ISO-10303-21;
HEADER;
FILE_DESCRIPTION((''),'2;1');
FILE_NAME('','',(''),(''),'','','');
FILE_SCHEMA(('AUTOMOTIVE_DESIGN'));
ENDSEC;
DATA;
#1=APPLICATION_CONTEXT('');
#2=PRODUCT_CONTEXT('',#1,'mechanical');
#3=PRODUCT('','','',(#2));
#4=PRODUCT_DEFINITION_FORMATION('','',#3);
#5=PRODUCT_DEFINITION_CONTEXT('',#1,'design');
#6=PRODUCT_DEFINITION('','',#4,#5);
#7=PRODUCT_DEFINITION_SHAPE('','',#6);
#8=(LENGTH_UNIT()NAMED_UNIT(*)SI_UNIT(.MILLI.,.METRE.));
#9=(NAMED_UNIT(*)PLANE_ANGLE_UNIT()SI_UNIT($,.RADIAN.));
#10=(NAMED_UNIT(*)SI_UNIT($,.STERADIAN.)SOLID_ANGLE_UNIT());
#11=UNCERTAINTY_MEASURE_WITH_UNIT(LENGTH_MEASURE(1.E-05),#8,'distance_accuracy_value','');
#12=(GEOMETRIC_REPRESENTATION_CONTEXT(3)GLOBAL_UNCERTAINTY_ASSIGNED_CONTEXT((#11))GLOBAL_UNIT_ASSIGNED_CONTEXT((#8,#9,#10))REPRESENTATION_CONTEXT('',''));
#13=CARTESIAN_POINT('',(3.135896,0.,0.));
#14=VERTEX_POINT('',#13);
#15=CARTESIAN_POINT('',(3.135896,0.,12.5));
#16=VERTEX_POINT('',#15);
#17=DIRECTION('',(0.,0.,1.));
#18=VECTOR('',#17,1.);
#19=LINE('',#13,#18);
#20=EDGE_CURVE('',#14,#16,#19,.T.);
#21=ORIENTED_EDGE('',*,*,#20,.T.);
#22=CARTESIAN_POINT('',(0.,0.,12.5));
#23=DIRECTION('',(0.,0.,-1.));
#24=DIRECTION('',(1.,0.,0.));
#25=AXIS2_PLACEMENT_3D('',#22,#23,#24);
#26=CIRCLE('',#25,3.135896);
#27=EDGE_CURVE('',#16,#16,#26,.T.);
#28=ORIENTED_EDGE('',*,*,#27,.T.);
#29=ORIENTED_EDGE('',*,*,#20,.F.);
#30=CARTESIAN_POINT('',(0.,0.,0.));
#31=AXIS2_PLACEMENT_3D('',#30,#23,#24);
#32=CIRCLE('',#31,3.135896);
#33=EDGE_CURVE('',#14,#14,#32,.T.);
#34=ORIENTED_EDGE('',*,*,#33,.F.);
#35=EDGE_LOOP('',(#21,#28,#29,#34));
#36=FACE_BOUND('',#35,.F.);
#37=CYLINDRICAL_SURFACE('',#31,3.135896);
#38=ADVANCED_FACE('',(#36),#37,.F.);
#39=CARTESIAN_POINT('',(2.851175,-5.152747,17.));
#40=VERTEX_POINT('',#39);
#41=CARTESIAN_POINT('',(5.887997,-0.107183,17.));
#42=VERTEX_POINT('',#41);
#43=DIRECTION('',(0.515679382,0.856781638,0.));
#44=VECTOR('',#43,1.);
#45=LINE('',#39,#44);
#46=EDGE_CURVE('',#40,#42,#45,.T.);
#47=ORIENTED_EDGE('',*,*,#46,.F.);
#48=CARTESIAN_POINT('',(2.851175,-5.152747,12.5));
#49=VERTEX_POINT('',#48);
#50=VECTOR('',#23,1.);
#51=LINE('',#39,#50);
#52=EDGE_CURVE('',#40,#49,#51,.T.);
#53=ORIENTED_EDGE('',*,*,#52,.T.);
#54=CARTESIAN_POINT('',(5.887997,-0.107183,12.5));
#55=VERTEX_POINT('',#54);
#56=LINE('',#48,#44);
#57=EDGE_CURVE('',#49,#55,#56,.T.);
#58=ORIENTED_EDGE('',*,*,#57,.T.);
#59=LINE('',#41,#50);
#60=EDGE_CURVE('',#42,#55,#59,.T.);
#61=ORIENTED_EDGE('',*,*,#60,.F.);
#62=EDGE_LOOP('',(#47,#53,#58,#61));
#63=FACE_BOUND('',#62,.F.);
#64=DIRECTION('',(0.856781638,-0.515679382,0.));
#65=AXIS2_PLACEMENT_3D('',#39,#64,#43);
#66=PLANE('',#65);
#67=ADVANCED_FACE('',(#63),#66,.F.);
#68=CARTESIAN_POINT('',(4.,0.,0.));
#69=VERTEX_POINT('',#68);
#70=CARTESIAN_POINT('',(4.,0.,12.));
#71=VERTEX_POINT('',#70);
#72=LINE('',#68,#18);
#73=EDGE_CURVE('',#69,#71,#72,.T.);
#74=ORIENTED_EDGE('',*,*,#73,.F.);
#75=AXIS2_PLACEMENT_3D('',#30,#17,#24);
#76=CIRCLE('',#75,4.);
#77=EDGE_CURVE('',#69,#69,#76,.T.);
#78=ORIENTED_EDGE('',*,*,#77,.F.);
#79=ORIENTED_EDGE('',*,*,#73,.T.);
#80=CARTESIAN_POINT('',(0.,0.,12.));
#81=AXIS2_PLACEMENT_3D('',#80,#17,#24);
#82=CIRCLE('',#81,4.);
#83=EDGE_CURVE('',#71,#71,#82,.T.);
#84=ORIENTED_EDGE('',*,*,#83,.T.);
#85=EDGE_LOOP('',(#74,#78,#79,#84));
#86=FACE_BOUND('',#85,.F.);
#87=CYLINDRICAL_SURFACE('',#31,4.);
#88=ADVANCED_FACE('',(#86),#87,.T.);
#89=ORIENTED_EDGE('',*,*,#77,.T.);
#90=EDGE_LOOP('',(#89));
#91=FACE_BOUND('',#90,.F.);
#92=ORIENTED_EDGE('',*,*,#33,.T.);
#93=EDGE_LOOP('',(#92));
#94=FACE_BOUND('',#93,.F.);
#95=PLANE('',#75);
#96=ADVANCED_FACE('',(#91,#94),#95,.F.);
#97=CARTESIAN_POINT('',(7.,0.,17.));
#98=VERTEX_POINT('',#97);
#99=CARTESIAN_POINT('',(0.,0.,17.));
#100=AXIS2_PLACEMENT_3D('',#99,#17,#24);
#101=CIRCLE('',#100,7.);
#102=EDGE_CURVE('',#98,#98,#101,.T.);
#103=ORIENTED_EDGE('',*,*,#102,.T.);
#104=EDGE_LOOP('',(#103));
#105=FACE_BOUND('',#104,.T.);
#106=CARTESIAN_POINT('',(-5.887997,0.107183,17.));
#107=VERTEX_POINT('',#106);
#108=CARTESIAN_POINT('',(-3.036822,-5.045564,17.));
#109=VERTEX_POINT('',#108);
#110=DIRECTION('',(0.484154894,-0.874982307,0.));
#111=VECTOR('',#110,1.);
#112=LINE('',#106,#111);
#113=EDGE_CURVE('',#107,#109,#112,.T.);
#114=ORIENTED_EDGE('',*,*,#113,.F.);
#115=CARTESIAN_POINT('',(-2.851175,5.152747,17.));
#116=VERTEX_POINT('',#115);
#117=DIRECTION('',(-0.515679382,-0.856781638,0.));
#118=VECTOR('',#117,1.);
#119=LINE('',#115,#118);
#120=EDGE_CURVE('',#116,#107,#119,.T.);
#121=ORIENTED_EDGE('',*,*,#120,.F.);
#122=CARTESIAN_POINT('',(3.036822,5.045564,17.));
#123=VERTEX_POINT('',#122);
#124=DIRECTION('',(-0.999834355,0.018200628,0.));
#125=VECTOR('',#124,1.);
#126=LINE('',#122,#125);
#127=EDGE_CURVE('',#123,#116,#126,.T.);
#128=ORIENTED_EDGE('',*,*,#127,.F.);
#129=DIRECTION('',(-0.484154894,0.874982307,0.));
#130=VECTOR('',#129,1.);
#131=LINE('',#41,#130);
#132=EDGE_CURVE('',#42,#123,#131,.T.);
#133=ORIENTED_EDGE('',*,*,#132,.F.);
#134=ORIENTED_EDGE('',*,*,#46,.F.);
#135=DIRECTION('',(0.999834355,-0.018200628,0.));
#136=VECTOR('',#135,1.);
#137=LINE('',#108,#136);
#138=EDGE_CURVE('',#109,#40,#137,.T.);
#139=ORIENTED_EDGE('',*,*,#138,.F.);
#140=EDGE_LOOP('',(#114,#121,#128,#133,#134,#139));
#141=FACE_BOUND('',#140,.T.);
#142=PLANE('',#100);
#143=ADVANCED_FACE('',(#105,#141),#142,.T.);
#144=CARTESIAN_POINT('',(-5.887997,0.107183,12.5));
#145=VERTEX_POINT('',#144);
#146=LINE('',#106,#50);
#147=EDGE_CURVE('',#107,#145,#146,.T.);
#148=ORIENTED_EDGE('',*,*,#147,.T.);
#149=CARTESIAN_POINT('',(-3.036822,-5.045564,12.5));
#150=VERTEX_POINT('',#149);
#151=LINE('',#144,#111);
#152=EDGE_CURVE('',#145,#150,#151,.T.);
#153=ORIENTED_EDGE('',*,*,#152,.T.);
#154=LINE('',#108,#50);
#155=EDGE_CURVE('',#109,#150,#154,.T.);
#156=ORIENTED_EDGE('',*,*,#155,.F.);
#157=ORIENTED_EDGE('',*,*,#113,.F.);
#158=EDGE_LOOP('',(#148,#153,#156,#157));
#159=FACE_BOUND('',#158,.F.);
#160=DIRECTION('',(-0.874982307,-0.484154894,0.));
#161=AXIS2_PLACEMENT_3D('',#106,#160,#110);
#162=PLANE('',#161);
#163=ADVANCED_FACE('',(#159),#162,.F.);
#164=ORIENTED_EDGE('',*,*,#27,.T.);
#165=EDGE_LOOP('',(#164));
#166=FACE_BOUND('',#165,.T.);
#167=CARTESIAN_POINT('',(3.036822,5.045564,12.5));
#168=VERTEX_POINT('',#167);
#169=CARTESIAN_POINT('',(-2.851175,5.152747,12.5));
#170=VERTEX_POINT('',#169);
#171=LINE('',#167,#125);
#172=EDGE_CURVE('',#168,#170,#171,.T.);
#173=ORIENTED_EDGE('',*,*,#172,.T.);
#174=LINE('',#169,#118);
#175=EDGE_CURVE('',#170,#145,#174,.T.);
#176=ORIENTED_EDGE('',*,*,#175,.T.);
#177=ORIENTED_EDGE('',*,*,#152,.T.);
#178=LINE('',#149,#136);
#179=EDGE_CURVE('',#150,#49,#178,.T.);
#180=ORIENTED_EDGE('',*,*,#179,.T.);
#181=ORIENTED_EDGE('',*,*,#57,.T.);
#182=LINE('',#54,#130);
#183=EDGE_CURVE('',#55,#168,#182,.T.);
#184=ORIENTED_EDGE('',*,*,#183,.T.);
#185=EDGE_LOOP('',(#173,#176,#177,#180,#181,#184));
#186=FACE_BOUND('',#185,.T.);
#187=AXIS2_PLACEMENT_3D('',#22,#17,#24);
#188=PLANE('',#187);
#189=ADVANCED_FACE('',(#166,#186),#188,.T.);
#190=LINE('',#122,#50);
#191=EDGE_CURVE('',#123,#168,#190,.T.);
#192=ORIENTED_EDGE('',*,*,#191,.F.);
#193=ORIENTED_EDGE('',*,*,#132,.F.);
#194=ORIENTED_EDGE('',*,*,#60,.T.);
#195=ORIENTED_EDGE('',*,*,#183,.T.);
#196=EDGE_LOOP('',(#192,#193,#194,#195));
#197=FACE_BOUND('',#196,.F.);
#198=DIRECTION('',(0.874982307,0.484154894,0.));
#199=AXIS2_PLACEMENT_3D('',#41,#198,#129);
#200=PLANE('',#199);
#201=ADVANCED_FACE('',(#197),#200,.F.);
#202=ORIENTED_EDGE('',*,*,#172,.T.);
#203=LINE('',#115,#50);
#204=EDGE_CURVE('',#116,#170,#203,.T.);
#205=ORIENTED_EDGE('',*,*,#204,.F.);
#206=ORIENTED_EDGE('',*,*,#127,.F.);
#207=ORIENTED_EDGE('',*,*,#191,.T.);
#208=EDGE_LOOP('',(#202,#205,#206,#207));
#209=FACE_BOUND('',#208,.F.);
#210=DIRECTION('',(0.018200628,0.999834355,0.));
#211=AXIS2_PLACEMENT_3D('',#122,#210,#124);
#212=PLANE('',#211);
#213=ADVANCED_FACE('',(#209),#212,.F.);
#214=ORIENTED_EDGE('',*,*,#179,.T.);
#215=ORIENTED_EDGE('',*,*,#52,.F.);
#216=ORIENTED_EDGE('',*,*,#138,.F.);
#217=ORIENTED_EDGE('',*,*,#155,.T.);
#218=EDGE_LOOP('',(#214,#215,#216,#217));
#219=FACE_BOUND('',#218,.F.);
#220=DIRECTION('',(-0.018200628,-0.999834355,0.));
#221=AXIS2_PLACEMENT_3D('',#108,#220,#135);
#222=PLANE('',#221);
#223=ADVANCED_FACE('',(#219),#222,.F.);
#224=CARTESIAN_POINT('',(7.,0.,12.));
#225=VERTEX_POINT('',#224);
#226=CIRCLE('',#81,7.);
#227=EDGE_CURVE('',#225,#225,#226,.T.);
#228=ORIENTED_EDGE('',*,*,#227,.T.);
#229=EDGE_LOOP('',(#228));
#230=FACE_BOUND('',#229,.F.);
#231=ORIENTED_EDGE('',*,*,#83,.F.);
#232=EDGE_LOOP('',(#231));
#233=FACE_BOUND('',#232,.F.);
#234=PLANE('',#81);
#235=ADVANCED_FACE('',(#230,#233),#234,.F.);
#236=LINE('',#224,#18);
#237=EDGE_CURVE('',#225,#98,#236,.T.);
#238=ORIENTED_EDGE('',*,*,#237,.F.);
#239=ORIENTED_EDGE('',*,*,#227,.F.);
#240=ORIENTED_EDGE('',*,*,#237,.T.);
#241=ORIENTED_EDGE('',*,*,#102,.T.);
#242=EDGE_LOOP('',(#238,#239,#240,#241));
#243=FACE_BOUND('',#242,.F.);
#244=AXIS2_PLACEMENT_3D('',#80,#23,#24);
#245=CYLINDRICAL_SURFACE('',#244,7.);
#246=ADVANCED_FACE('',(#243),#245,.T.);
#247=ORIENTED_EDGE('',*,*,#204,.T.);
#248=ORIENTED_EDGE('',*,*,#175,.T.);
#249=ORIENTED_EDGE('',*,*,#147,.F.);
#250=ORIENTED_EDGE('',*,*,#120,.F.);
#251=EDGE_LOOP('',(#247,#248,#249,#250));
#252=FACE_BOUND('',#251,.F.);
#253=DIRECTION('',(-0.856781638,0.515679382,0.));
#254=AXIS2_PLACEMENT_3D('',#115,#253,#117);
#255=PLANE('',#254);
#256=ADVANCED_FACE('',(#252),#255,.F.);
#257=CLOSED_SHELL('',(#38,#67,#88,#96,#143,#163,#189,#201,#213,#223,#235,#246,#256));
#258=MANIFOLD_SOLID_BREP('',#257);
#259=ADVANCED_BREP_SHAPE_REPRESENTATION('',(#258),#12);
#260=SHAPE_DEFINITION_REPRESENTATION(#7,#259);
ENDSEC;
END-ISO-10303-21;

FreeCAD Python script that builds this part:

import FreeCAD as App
import Part
import Sketcher
Q = App.Units.Quantity


def add_polygon(sketch, points):
    """Adds a closed chain of lines whose ends are joined by coincident constraints."""
    first, n = sketch.GeometryCount, len(points)
    for a, b in zip(points, points[1:] + points[:1]):
        sketch.addGeometry(Part.LineSegment(App.Vector(*a, 0), App.Vector(*b, 0)), False)
    for i in range(n):
        sketch.addConstraint(Sketcher.Constraint("Coincident", first + i, 2, first + (i + 1) % n, 1))

doc = App.newDocument("Part")
params = doc.addObject("Spreadsheet::Sheet", "Params")
for row, (alias, value) in enumerate([
    ("sketch1_diameter", "8 mm"),
    ("pad1_length", "12 mm"),
    ("sketch2_diameter", "14 mm"),
    ("pad2_length", "5 mm"),
    ("pocket1_length", "4.5 mm"),
    ("pocket2_length", "25 mm"),
], start=1):
    params.set(f"A{row}", alias)
    params.set(f"B{row}", "=" + value)
    params.setAlias(f"B{row}", alias)

body = doc.addObject("PartDesign::Body", "Body")

# Sketch on XY plane
sketch1 = body.newObject("Sketcher::SketchObject", "Sketch")
sketch1.AttachmentSupport = (doc.getObject("XY_Plane"), [""])
sketch1.MapMode = "FlatFace"
sketch1.addGeometry(Part.Circle(App.Vector(0, 0, 0), App.Vector(0, 0, 1), 4), False)
sketch1.addConstraint([
    Sketcher.Constraint("Coincident", 0, 3, -1, 1),
    Sketcher.Constraint("Diameter", 0, Q("8 mm")),
])
sketch1.setExpression("Constraints[1]", "Params.sketch1_diameter")
pad1 = body.newObject("PartDesign::Pad", "Pad")
pad1.Profile = sketch1
pad1.setExpression("Length", "Params.pad1_length")

# Sketch on XY plane
sketch2 = body.newObject("Sketcher::SketchObject", "Sketch001")
sketch2.AttachmentSupport = (doc.getObject("XY_Plane"), [""])
sketch2.MapMode = "FlatFace"
sketch2.AttachmentOffset = App.Placement(App.Vector(0, 0, 12), App.Rotation())
sketch2.addGeometry(Part.Circle(App.Vector(0, 0, 0), App.Vector(0, 0, 1), 7), False)
sketch2.addConstraint([
    Sketcher.Constraint("Coincident", 0, 3, -1, 1),
    Sketcher.Constraint("Diameter", 0, Q("14 mm")),
])
sketch2.setExpression("Constraints[1]", "Params.sketch2_diameter")
pad2 = body.newObject("PartDesign::Pad", "Pad001")
pad2.Profile = sketch2
pad2.setExpression("Length", "Params.pad2_length")

# Sketch on XY plane
sketch3 = body.newObject("Sketcher::SketchObject", "Sketch002")
sketch3.AttachmentSupport = (doc.getObject("XY_Plane"), [""])
sketch3.MapMode = "FlatFace"
sketch3.AttachmentOffset = App.Placement(App.Vector(0, 0, 17), App.Rotation())
add_polygon(sketch3, [(6, 0), (3, 5), (-3, 5), (-6, 0), (-3, -5), (3, -5)])  # lines 0-5
sketch3.addConstraint([
    Sketcher.Constraint("Symmetric", 0, 2, 3, 2, -1, 1),
    Sketcher.Constraint("Symmetric", 1, 2, 4, 2, -1, 1),
    Sketcher.Constraint("Symmetric", 2, 2, 5, 2, -1, 1),
    Sketcher.Constraint("Equal", 0, 1),
    Sketcher.Constraint("Equal", 1, 2),
    Sketcher.Constraint("DistanceX", -1, 1, 0, 2, Q("3.036822 mm")),
    Sketcher.Constraint("DistanceX", 2, 2, 0, 2, Q("8.924819 mm")),
    Sketcher.Constraint("DistanceY", 2, 2, 0, 2, Q("4.938381 mm")),
    Sketcher.Constraint("DistanceY", 3, 2, 1, 2, Q("10.198311 mm")),
])
pocket1 = body.newObject("PartDesign::Pocket", "Pocket")
pocket1.Profile = sketch3
pocket1.setExpression("Length", "Params.pocket1_length")

# Sketch on XY plane
sketch4 = body.newObject("Sketcher::SketchObject", "Sketch003")
sketch4.AttachmentSupport = (doc.getObject("XY_Plane"), [""])
sketch4.MapMode = "FlatFace"
sketch4.addGeometry(Part.Circle(App.Vector(0, 0, 0), App.Vector(0, 0, 1), 3.1), False)
sketch4.addConstraint([
    Sketcher.Constraint("Coincident", 0, 3, -1, 1),
    Sketcher.Constraint("Diameter", 0, Q("6.271792 mm")),
])
pocket2 = body.newObject("PartDesign::Pocket", "Pocket001")
pocket2.Profile = sketch4
pocket2.setExpression("Length", "Params.pocket2_length")
pocket2.Reversed = True

doc.recompute()
